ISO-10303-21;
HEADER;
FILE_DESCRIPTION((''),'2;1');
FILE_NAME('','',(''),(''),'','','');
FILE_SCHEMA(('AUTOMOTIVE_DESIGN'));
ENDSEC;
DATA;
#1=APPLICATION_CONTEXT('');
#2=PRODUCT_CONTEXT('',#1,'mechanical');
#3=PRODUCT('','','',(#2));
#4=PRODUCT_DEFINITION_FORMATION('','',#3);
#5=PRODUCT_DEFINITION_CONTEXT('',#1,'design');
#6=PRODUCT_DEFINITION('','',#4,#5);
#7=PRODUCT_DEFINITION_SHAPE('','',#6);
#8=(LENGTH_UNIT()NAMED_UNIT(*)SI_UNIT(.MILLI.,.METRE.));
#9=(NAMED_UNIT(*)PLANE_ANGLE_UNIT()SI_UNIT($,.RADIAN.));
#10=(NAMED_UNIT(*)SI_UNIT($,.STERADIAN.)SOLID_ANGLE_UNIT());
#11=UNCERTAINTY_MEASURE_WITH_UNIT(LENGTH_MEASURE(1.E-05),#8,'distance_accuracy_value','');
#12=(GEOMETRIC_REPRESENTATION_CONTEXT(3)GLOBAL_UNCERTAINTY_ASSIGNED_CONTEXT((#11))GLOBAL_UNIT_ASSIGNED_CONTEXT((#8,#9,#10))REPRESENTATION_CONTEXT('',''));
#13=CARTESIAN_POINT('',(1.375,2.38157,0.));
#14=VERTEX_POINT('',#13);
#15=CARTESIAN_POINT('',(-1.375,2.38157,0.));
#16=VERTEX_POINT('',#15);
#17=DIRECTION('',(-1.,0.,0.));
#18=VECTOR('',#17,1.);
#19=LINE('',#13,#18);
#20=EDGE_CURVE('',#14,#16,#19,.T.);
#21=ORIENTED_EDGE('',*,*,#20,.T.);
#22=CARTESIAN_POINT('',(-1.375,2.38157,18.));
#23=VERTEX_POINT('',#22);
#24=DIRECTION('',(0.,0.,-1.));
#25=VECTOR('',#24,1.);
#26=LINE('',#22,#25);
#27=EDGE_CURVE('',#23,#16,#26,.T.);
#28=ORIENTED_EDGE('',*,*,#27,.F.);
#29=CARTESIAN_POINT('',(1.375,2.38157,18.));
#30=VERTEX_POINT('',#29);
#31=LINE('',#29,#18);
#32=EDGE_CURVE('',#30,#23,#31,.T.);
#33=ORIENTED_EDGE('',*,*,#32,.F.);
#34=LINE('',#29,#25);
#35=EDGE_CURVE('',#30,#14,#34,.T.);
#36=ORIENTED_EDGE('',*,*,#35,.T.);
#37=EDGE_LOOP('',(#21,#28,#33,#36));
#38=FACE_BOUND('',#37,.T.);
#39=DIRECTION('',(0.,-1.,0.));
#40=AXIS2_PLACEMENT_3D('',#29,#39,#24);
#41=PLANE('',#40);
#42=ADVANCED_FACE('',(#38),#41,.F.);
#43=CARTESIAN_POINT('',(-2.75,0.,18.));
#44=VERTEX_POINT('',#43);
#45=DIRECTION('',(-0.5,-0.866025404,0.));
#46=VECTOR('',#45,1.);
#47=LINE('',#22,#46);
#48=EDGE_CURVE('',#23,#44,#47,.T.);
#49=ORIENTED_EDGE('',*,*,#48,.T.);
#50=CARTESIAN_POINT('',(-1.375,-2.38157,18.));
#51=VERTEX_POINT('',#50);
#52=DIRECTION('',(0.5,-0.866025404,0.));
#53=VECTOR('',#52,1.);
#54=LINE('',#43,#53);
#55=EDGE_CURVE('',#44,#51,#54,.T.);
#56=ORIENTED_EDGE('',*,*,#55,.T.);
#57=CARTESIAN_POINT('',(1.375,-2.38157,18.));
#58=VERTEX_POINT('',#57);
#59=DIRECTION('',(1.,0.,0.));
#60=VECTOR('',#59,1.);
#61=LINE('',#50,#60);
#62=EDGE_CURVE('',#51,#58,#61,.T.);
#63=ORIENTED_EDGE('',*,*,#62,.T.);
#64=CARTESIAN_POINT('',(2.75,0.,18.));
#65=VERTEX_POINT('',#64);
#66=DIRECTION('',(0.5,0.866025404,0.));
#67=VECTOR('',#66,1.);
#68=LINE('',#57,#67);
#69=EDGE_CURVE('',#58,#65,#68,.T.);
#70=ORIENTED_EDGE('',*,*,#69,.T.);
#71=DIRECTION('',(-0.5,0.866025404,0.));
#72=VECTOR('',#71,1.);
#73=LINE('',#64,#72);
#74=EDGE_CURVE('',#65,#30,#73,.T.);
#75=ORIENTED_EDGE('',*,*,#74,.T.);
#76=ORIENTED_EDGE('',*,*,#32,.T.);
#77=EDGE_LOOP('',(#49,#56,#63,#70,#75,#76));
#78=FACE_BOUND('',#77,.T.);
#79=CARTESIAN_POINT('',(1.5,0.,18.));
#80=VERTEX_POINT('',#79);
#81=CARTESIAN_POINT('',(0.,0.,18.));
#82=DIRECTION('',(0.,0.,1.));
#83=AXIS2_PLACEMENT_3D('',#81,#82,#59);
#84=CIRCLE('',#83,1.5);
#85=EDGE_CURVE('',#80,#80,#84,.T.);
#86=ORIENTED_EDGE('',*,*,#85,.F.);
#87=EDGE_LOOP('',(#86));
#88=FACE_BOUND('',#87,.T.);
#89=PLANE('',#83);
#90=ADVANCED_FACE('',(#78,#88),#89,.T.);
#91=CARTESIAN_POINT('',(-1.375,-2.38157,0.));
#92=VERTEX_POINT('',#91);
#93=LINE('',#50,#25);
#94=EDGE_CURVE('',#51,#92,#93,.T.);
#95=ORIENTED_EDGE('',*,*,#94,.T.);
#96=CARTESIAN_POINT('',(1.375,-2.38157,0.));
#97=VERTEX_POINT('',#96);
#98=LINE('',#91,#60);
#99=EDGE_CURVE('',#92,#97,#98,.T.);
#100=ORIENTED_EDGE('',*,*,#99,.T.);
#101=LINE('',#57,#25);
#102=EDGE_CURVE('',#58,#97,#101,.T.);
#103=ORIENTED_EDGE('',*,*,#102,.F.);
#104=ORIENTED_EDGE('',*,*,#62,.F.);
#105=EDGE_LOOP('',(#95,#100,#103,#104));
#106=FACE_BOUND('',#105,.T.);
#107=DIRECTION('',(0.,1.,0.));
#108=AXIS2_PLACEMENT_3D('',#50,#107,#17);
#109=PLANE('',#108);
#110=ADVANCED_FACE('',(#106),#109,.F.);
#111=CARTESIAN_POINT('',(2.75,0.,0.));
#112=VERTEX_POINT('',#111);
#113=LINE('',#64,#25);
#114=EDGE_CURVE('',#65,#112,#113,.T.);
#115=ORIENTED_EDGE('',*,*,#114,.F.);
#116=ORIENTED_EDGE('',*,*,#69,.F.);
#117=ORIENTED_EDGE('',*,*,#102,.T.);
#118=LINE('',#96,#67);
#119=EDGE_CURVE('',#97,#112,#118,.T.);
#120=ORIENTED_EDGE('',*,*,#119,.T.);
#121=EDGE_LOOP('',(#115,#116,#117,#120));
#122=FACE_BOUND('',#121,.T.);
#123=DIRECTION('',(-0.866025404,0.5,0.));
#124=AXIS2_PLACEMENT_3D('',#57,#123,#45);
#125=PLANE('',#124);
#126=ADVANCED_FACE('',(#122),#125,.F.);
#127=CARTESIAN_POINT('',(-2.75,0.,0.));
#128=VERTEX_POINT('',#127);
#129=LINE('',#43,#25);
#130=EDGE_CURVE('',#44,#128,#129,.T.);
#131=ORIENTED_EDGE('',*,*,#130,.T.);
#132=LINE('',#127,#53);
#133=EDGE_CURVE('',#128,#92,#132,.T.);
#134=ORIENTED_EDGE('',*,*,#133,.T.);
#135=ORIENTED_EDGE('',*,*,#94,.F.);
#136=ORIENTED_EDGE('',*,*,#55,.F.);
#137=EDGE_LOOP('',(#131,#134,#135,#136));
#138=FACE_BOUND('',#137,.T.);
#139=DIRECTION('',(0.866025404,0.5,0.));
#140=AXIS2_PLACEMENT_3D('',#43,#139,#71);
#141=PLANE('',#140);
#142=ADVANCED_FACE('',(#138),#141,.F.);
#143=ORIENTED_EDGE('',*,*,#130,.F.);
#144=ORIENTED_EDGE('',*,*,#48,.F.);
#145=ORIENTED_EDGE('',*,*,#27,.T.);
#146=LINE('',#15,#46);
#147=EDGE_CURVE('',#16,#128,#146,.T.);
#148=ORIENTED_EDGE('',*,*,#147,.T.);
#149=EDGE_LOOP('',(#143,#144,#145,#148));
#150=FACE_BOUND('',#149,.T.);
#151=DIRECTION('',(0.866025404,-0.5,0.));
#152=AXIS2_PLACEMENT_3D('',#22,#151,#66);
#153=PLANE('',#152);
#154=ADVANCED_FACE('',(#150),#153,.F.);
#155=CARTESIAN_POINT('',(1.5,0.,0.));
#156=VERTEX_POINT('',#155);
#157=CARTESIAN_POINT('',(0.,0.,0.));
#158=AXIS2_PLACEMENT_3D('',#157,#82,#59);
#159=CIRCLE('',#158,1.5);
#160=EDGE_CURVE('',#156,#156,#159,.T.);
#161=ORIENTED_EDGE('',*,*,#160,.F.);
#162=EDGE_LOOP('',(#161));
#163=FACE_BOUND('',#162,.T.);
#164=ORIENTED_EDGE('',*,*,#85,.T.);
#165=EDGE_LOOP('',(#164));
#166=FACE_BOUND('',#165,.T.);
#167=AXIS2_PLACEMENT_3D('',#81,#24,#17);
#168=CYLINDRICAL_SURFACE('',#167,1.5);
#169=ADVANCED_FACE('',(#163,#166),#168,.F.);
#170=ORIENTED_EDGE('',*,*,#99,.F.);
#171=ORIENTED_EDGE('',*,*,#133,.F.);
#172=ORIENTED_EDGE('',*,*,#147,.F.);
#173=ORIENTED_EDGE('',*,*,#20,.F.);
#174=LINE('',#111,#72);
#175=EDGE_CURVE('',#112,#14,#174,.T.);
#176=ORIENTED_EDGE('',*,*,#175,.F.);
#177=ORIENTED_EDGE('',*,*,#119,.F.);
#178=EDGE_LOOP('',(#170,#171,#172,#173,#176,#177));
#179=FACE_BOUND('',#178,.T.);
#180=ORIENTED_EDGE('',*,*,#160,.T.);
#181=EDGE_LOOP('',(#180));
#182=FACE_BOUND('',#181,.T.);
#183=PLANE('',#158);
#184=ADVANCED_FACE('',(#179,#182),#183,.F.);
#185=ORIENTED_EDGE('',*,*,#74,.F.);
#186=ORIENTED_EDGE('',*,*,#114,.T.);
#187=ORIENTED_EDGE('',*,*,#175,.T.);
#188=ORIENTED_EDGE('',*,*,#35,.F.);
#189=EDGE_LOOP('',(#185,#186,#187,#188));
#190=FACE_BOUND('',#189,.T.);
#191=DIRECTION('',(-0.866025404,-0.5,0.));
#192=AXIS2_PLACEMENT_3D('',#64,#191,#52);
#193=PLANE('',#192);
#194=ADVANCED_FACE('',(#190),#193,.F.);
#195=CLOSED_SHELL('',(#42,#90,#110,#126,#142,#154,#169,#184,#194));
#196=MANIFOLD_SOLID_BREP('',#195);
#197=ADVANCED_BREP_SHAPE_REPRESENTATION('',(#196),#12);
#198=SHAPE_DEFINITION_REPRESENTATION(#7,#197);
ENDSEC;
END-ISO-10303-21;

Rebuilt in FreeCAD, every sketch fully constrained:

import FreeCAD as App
import Part
import Sketcher

V = App.Vector
Q = App.Units.Quantity

doc = App.newDocument("Part")
body = doc.addObject("PartDesign::Body", "Body")

# Sketch on XY plane
sketch1 = body.newObject("Sketcher::SketchObject", "Sketch")
sketch1.AttachmentSupport = (doc.getObject("XY_Plane"), [""])
sketch1.MapMode = "FlatFace"
sketch1.addGeometry([
    Part.LineSegment(V(-1.4, 2.4, 0), V(-2.8, 0, 0)),  # 0
    Part.LineSegment(V(-2.8, 0, 0), V(-1.4, -2.4, 0)),  # 1
    Part.LineSegment(V(-1.4, -2.4, 0), V(1.4, -2.4, 0)),  # 2
    Part.LineSegment(V(1.4, -2.4, 0), V(2.8, 0, 0)),  # 3
    Part.LineSegment(V(2.8, 0, 0), V(1.4, 2.4, 0)),  # 4
    Part.LineSegment(V(1.4, 2.4, 0), V(-1.4, 2.4, 0)),  # 5
    Part.Circle(V(0, 0, 0), V(0, 0, 1), 1.5),  # 6
], False)
sketch1.addConstraint([
    Sketcher.Constraint("Coincident", 0, 2, 1, 1),
    Sketcher.Constraint("Coincident", 1, 2, 2, 1),
    Sketcher.Constraint("Coincident", 2, 2, 3, 1),
    Sketcher.Constraint("Coincident", 3, 2, 4, 1),
    Sketcher.Constraint("Coincident", 4, 2, 5, 1),
    Sketcher.Constraint("Coincident", 5, 2, 0, 1),
    Sketcher.Constraint("Horizontal", 2),
    Sketcher.Constraint("Horizontal", 5),
    Sketcher.Constraint("Coincident", 6, 3, -1, 1),
    Sketcher.Constraint("Symmetric", 0, 2, 3, 2, -1, 1),
    Sketcher.Constraint("Symmetric", 1, 2, 4, 2, -1, 1),
    Sketcher.Constraint("PointOnObject", 0, 2, -1),
    Sketcher.Constraint("Parallel", 0, 3),
    Sketcher.Constraint("Vertical", 2, 2, 4, 2),
    Sketcher.Constraint("Diameter", 6, 3.0),
    Sketcher.Constraint("Angle", 0, Q("-120 deg")),
    Sketcher.Constraint("DistanceX", 2, 1, 2, 2, 2.75),
    Sketcher.Constraint("DistanceX", 0, 2, 3, 2, 5.5),
])
pad1 = body.newObject("PartDesign::Pad", "Pad")
pad1.Profile = sketch1
pad1.Length = 18

doc.recompute()
